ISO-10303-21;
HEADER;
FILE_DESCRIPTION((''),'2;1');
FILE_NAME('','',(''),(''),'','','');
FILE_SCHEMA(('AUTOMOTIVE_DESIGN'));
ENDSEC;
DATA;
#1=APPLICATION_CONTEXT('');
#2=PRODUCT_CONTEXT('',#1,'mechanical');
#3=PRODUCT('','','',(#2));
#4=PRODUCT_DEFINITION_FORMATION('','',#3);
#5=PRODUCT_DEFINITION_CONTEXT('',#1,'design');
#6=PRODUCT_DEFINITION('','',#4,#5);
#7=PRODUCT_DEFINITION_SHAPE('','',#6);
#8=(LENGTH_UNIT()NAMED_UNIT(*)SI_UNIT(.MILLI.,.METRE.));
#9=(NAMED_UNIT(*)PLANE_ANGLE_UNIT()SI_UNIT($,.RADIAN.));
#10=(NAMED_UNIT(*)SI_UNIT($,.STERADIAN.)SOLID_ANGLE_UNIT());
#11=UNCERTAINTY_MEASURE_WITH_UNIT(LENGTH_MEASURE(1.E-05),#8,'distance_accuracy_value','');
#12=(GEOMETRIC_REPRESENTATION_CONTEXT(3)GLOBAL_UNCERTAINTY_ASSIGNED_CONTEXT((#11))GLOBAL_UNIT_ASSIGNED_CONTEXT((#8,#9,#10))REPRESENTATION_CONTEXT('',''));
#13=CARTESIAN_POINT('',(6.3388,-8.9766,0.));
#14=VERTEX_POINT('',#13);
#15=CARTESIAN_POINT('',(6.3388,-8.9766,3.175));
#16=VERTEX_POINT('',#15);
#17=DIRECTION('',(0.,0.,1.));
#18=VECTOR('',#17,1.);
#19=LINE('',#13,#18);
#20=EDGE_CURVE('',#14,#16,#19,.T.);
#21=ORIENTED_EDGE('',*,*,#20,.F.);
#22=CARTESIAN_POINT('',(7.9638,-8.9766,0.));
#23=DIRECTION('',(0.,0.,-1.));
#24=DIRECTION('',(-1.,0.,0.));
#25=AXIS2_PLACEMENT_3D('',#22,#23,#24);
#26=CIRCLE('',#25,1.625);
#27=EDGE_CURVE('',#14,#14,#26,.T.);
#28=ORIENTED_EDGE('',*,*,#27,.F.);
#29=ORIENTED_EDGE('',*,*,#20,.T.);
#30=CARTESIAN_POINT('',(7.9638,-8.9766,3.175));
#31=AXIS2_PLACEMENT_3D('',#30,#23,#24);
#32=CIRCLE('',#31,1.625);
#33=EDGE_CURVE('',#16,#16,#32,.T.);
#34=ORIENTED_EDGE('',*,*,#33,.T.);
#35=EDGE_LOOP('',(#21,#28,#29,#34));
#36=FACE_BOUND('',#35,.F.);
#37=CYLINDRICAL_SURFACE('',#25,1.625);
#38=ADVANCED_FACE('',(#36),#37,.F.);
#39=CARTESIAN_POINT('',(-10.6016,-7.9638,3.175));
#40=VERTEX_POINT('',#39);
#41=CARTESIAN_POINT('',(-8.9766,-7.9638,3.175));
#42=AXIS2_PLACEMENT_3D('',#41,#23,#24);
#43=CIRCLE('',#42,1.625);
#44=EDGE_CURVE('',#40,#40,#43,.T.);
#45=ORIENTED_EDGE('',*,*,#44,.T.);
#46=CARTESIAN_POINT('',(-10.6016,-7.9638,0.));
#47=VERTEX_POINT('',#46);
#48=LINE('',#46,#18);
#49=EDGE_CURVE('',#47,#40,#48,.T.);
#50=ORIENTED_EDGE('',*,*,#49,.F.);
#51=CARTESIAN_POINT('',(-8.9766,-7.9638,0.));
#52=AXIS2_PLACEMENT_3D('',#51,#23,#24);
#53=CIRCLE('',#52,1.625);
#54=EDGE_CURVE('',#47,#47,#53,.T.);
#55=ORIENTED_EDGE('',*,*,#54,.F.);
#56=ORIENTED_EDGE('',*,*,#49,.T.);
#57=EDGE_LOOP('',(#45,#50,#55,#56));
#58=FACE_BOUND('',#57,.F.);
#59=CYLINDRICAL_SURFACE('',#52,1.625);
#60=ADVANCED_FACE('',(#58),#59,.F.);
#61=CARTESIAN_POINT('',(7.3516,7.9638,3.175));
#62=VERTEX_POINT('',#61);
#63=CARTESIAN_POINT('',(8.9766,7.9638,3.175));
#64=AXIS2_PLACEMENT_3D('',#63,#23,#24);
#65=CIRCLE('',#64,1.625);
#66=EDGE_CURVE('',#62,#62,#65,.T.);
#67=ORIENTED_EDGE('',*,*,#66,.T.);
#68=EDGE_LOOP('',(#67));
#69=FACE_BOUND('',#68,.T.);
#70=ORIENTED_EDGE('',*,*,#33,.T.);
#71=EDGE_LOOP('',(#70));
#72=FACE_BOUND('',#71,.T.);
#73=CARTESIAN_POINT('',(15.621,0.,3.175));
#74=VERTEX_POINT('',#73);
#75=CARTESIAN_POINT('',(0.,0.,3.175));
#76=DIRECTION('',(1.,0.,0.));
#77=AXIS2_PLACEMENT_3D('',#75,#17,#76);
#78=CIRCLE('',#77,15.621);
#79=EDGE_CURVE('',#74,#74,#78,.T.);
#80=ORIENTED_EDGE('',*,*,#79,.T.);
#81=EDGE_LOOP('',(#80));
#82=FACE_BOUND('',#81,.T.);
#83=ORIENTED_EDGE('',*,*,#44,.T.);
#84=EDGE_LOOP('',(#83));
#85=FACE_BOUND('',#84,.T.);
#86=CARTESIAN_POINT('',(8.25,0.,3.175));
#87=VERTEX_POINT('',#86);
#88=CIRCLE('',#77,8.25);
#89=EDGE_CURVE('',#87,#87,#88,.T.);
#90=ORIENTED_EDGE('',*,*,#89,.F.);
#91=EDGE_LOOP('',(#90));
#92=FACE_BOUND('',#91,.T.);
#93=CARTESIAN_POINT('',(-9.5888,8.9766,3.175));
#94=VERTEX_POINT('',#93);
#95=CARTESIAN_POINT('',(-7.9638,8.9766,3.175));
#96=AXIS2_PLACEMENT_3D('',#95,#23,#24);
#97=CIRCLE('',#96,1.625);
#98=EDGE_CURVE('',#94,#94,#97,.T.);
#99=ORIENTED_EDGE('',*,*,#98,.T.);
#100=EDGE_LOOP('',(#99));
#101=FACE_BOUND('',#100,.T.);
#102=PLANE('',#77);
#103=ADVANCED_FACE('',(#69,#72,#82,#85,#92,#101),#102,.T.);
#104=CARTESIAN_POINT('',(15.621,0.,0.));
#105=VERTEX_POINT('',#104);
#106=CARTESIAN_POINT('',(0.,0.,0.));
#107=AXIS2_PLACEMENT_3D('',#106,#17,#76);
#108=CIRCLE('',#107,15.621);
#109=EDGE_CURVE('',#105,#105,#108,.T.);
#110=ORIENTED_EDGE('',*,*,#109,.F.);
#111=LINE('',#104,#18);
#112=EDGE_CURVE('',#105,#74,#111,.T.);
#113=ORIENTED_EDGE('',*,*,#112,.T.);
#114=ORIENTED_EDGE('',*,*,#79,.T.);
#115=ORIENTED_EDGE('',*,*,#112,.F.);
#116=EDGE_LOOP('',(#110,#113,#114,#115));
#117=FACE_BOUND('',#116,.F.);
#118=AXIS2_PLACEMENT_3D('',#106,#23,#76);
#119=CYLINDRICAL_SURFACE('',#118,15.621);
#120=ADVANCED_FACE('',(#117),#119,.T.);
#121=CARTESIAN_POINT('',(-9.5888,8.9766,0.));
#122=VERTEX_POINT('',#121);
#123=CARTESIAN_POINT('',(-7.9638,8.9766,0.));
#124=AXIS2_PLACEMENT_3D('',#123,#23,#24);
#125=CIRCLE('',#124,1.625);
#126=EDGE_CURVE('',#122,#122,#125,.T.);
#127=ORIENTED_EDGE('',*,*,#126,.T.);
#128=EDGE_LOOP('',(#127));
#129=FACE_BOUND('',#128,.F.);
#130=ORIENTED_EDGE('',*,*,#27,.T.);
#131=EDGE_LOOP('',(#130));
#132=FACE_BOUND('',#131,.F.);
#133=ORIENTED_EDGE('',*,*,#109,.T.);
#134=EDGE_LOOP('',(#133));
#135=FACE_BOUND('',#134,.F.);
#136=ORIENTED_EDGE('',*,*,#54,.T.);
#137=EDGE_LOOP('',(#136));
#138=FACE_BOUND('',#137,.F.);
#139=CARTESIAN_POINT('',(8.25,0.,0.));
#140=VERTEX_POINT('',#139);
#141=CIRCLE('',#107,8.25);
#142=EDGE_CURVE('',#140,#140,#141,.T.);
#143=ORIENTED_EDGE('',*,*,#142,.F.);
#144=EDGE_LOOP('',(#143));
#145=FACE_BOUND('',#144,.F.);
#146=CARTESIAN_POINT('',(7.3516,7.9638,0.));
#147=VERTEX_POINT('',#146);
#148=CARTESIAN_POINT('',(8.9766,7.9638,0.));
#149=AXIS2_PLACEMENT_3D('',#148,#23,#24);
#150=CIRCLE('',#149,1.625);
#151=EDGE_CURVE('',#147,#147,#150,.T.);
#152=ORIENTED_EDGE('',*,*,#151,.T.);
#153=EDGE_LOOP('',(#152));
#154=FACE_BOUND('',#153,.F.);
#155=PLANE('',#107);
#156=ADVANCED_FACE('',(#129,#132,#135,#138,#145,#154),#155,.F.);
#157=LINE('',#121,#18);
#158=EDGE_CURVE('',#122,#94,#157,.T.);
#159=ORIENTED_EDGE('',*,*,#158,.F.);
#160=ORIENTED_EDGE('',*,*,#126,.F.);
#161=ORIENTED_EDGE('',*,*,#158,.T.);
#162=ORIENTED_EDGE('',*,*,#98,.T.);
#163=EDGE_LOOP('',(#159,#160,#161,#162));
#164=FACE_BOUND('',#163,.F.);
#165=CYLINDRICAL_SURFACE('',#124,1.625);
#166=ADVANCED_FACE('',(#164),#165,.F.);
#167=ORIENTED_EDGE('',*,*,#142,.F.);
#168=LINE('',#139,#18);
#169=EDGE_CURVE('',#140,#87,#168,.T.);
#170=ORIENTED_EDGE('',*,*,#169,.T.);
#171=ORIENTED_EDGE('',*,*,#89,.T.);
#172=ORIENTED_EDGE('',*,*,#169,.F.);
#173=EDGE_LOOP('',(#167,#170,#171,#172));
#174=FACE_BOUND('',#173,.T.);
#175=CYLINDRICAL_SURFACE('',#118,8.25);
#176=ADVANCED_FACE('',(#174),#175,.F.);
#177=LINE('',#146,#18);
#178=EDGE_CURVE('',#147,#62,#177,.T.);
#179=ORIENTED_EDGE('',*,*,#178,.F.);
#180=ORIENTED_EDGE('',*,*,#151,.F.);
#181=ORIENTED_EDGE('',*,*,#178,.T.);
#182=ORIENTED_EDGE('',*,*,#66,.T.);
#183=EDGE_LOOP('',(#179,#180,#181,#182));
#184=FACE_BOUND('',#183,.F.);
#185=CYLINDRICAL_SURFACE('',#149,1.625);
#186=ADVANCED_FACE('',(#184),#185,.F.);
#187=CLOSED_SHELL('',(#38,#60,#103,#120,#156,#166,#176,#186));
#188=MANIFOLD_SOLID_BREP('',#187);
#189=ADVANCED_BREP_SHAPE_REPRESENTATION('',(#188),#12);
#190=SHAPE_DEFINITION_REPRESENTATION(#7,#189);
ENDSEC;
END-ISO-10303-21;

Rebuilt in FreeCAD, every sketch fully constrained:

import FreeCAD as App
import Part
import Sketcher
from FreeCAD import Vector
Q = App.Units.Quantity

doc = App.newDocument("Part")
body = doc.addObject("PartDesign::Body", "Body")

# Sketch on XY plane
sketch1 = body.newObject("Sketcher::SketchObject", "Sketch")
sketch1.AttachmentSupport = (doc.getObject("XY_Plane"), [""])
sketch1.MapMode = "FlatFace"
sketch1.addGeometry(Part.Circle(Vector(0, 0, 0), Vector(0, 0, 1), 16), False)
sketch1.addGeometry(Part.Circle(Vector(0, 0, 0), Vector(0, 0, 1), 8), False)
sketch1.addConstraint(Sketcher.Constraint("Coincident", 0, 3, -1, 1))
sketch1.addConstraint(Sketcher.Constraint("Coincident", 1, 3, -1, 1))
sketch1.addConstraint(Sketcher.Constraint("Diameter", 0, Q("1.23 in")))
sketch1.addConstraint(Sketcher.Constraint("Diameter", 1, Q("0.6496 in")))
pad1 = body.newObject("PartDesign::Pad", "Pad")
pad1.Profile = sketch1
pad1.Length = Q("0.125 in")

# Sketch on XY plane
sketch2 = body.newObject("Sketcher::SketchObject", "Sketch001")
sketch2.AttachmentSupport = (doc.getObject("XY_Plane"), [""])
sketch2.MapMode = "FlatFace"
sketch2.addGeometry(Part.Circle(Vector(9, 8, 0), Vector(0, 0, 1), 1.6), False)
sketch2.addGeometry(Part.Circle(Vector(-8, 9, 0), Vector(0, 0, 1), 1.6), False)
sketch2.addGeometry(Part.Circle(Vector(-9, -8, 0), Vector(0, 0, 1), 1.6), False)
sketch2.addGeometry(Part.Circle(Vector(8, -9, 0), Vector(0, 0, 1), 1.6), False)
sketch2.addConstraint(Sketcher.Constraint("Equal", 0, 1))
sketch2.addConstraint(Sketcher.Constraint("Equal", 1, 2))
sketch2.addConstraint(Sketcher.Constraint("Equal", 2, 3))
sketch2.addConstraint(Sketcher.Constraint("Symmetric", 0, 3, 2, 3, -1, 1))
sketch2.addConstraint(Sketcher.Constraint("Symmetric", 1, 3, 3, 3, -1, 1))
sketch2.addConstraint(Sketcher.Constraint("Diameter", 0, Q("3.25 mm")))
sketch2.addConstraint(Sketcher.Constraint("DistanceX", -1, 1, 0, 3, Q("0.3534 in")))
sketch2.addConstraint(Sketcher.Constraint("DistanceY", -1, 1, 1, 3, Q("0.3534 in")))
sketch2.addConstraint(Sketcher.Constraint("DistanceY", -1, 1, 0, 3, Q("7.9638 mm")))
sketch2.addConstraint(Sketcher.Constraint("DistanceX", 1, 3, -1, 1, Q("7.9638 mm")))
pocket1 = body.newObject("PartDesign::Pocket", "Pocket")
pocket1.Profile = sketch2
pocket1.Length = Q("0.125 in")
pocket1.Reversed = True

doc.recompute()
